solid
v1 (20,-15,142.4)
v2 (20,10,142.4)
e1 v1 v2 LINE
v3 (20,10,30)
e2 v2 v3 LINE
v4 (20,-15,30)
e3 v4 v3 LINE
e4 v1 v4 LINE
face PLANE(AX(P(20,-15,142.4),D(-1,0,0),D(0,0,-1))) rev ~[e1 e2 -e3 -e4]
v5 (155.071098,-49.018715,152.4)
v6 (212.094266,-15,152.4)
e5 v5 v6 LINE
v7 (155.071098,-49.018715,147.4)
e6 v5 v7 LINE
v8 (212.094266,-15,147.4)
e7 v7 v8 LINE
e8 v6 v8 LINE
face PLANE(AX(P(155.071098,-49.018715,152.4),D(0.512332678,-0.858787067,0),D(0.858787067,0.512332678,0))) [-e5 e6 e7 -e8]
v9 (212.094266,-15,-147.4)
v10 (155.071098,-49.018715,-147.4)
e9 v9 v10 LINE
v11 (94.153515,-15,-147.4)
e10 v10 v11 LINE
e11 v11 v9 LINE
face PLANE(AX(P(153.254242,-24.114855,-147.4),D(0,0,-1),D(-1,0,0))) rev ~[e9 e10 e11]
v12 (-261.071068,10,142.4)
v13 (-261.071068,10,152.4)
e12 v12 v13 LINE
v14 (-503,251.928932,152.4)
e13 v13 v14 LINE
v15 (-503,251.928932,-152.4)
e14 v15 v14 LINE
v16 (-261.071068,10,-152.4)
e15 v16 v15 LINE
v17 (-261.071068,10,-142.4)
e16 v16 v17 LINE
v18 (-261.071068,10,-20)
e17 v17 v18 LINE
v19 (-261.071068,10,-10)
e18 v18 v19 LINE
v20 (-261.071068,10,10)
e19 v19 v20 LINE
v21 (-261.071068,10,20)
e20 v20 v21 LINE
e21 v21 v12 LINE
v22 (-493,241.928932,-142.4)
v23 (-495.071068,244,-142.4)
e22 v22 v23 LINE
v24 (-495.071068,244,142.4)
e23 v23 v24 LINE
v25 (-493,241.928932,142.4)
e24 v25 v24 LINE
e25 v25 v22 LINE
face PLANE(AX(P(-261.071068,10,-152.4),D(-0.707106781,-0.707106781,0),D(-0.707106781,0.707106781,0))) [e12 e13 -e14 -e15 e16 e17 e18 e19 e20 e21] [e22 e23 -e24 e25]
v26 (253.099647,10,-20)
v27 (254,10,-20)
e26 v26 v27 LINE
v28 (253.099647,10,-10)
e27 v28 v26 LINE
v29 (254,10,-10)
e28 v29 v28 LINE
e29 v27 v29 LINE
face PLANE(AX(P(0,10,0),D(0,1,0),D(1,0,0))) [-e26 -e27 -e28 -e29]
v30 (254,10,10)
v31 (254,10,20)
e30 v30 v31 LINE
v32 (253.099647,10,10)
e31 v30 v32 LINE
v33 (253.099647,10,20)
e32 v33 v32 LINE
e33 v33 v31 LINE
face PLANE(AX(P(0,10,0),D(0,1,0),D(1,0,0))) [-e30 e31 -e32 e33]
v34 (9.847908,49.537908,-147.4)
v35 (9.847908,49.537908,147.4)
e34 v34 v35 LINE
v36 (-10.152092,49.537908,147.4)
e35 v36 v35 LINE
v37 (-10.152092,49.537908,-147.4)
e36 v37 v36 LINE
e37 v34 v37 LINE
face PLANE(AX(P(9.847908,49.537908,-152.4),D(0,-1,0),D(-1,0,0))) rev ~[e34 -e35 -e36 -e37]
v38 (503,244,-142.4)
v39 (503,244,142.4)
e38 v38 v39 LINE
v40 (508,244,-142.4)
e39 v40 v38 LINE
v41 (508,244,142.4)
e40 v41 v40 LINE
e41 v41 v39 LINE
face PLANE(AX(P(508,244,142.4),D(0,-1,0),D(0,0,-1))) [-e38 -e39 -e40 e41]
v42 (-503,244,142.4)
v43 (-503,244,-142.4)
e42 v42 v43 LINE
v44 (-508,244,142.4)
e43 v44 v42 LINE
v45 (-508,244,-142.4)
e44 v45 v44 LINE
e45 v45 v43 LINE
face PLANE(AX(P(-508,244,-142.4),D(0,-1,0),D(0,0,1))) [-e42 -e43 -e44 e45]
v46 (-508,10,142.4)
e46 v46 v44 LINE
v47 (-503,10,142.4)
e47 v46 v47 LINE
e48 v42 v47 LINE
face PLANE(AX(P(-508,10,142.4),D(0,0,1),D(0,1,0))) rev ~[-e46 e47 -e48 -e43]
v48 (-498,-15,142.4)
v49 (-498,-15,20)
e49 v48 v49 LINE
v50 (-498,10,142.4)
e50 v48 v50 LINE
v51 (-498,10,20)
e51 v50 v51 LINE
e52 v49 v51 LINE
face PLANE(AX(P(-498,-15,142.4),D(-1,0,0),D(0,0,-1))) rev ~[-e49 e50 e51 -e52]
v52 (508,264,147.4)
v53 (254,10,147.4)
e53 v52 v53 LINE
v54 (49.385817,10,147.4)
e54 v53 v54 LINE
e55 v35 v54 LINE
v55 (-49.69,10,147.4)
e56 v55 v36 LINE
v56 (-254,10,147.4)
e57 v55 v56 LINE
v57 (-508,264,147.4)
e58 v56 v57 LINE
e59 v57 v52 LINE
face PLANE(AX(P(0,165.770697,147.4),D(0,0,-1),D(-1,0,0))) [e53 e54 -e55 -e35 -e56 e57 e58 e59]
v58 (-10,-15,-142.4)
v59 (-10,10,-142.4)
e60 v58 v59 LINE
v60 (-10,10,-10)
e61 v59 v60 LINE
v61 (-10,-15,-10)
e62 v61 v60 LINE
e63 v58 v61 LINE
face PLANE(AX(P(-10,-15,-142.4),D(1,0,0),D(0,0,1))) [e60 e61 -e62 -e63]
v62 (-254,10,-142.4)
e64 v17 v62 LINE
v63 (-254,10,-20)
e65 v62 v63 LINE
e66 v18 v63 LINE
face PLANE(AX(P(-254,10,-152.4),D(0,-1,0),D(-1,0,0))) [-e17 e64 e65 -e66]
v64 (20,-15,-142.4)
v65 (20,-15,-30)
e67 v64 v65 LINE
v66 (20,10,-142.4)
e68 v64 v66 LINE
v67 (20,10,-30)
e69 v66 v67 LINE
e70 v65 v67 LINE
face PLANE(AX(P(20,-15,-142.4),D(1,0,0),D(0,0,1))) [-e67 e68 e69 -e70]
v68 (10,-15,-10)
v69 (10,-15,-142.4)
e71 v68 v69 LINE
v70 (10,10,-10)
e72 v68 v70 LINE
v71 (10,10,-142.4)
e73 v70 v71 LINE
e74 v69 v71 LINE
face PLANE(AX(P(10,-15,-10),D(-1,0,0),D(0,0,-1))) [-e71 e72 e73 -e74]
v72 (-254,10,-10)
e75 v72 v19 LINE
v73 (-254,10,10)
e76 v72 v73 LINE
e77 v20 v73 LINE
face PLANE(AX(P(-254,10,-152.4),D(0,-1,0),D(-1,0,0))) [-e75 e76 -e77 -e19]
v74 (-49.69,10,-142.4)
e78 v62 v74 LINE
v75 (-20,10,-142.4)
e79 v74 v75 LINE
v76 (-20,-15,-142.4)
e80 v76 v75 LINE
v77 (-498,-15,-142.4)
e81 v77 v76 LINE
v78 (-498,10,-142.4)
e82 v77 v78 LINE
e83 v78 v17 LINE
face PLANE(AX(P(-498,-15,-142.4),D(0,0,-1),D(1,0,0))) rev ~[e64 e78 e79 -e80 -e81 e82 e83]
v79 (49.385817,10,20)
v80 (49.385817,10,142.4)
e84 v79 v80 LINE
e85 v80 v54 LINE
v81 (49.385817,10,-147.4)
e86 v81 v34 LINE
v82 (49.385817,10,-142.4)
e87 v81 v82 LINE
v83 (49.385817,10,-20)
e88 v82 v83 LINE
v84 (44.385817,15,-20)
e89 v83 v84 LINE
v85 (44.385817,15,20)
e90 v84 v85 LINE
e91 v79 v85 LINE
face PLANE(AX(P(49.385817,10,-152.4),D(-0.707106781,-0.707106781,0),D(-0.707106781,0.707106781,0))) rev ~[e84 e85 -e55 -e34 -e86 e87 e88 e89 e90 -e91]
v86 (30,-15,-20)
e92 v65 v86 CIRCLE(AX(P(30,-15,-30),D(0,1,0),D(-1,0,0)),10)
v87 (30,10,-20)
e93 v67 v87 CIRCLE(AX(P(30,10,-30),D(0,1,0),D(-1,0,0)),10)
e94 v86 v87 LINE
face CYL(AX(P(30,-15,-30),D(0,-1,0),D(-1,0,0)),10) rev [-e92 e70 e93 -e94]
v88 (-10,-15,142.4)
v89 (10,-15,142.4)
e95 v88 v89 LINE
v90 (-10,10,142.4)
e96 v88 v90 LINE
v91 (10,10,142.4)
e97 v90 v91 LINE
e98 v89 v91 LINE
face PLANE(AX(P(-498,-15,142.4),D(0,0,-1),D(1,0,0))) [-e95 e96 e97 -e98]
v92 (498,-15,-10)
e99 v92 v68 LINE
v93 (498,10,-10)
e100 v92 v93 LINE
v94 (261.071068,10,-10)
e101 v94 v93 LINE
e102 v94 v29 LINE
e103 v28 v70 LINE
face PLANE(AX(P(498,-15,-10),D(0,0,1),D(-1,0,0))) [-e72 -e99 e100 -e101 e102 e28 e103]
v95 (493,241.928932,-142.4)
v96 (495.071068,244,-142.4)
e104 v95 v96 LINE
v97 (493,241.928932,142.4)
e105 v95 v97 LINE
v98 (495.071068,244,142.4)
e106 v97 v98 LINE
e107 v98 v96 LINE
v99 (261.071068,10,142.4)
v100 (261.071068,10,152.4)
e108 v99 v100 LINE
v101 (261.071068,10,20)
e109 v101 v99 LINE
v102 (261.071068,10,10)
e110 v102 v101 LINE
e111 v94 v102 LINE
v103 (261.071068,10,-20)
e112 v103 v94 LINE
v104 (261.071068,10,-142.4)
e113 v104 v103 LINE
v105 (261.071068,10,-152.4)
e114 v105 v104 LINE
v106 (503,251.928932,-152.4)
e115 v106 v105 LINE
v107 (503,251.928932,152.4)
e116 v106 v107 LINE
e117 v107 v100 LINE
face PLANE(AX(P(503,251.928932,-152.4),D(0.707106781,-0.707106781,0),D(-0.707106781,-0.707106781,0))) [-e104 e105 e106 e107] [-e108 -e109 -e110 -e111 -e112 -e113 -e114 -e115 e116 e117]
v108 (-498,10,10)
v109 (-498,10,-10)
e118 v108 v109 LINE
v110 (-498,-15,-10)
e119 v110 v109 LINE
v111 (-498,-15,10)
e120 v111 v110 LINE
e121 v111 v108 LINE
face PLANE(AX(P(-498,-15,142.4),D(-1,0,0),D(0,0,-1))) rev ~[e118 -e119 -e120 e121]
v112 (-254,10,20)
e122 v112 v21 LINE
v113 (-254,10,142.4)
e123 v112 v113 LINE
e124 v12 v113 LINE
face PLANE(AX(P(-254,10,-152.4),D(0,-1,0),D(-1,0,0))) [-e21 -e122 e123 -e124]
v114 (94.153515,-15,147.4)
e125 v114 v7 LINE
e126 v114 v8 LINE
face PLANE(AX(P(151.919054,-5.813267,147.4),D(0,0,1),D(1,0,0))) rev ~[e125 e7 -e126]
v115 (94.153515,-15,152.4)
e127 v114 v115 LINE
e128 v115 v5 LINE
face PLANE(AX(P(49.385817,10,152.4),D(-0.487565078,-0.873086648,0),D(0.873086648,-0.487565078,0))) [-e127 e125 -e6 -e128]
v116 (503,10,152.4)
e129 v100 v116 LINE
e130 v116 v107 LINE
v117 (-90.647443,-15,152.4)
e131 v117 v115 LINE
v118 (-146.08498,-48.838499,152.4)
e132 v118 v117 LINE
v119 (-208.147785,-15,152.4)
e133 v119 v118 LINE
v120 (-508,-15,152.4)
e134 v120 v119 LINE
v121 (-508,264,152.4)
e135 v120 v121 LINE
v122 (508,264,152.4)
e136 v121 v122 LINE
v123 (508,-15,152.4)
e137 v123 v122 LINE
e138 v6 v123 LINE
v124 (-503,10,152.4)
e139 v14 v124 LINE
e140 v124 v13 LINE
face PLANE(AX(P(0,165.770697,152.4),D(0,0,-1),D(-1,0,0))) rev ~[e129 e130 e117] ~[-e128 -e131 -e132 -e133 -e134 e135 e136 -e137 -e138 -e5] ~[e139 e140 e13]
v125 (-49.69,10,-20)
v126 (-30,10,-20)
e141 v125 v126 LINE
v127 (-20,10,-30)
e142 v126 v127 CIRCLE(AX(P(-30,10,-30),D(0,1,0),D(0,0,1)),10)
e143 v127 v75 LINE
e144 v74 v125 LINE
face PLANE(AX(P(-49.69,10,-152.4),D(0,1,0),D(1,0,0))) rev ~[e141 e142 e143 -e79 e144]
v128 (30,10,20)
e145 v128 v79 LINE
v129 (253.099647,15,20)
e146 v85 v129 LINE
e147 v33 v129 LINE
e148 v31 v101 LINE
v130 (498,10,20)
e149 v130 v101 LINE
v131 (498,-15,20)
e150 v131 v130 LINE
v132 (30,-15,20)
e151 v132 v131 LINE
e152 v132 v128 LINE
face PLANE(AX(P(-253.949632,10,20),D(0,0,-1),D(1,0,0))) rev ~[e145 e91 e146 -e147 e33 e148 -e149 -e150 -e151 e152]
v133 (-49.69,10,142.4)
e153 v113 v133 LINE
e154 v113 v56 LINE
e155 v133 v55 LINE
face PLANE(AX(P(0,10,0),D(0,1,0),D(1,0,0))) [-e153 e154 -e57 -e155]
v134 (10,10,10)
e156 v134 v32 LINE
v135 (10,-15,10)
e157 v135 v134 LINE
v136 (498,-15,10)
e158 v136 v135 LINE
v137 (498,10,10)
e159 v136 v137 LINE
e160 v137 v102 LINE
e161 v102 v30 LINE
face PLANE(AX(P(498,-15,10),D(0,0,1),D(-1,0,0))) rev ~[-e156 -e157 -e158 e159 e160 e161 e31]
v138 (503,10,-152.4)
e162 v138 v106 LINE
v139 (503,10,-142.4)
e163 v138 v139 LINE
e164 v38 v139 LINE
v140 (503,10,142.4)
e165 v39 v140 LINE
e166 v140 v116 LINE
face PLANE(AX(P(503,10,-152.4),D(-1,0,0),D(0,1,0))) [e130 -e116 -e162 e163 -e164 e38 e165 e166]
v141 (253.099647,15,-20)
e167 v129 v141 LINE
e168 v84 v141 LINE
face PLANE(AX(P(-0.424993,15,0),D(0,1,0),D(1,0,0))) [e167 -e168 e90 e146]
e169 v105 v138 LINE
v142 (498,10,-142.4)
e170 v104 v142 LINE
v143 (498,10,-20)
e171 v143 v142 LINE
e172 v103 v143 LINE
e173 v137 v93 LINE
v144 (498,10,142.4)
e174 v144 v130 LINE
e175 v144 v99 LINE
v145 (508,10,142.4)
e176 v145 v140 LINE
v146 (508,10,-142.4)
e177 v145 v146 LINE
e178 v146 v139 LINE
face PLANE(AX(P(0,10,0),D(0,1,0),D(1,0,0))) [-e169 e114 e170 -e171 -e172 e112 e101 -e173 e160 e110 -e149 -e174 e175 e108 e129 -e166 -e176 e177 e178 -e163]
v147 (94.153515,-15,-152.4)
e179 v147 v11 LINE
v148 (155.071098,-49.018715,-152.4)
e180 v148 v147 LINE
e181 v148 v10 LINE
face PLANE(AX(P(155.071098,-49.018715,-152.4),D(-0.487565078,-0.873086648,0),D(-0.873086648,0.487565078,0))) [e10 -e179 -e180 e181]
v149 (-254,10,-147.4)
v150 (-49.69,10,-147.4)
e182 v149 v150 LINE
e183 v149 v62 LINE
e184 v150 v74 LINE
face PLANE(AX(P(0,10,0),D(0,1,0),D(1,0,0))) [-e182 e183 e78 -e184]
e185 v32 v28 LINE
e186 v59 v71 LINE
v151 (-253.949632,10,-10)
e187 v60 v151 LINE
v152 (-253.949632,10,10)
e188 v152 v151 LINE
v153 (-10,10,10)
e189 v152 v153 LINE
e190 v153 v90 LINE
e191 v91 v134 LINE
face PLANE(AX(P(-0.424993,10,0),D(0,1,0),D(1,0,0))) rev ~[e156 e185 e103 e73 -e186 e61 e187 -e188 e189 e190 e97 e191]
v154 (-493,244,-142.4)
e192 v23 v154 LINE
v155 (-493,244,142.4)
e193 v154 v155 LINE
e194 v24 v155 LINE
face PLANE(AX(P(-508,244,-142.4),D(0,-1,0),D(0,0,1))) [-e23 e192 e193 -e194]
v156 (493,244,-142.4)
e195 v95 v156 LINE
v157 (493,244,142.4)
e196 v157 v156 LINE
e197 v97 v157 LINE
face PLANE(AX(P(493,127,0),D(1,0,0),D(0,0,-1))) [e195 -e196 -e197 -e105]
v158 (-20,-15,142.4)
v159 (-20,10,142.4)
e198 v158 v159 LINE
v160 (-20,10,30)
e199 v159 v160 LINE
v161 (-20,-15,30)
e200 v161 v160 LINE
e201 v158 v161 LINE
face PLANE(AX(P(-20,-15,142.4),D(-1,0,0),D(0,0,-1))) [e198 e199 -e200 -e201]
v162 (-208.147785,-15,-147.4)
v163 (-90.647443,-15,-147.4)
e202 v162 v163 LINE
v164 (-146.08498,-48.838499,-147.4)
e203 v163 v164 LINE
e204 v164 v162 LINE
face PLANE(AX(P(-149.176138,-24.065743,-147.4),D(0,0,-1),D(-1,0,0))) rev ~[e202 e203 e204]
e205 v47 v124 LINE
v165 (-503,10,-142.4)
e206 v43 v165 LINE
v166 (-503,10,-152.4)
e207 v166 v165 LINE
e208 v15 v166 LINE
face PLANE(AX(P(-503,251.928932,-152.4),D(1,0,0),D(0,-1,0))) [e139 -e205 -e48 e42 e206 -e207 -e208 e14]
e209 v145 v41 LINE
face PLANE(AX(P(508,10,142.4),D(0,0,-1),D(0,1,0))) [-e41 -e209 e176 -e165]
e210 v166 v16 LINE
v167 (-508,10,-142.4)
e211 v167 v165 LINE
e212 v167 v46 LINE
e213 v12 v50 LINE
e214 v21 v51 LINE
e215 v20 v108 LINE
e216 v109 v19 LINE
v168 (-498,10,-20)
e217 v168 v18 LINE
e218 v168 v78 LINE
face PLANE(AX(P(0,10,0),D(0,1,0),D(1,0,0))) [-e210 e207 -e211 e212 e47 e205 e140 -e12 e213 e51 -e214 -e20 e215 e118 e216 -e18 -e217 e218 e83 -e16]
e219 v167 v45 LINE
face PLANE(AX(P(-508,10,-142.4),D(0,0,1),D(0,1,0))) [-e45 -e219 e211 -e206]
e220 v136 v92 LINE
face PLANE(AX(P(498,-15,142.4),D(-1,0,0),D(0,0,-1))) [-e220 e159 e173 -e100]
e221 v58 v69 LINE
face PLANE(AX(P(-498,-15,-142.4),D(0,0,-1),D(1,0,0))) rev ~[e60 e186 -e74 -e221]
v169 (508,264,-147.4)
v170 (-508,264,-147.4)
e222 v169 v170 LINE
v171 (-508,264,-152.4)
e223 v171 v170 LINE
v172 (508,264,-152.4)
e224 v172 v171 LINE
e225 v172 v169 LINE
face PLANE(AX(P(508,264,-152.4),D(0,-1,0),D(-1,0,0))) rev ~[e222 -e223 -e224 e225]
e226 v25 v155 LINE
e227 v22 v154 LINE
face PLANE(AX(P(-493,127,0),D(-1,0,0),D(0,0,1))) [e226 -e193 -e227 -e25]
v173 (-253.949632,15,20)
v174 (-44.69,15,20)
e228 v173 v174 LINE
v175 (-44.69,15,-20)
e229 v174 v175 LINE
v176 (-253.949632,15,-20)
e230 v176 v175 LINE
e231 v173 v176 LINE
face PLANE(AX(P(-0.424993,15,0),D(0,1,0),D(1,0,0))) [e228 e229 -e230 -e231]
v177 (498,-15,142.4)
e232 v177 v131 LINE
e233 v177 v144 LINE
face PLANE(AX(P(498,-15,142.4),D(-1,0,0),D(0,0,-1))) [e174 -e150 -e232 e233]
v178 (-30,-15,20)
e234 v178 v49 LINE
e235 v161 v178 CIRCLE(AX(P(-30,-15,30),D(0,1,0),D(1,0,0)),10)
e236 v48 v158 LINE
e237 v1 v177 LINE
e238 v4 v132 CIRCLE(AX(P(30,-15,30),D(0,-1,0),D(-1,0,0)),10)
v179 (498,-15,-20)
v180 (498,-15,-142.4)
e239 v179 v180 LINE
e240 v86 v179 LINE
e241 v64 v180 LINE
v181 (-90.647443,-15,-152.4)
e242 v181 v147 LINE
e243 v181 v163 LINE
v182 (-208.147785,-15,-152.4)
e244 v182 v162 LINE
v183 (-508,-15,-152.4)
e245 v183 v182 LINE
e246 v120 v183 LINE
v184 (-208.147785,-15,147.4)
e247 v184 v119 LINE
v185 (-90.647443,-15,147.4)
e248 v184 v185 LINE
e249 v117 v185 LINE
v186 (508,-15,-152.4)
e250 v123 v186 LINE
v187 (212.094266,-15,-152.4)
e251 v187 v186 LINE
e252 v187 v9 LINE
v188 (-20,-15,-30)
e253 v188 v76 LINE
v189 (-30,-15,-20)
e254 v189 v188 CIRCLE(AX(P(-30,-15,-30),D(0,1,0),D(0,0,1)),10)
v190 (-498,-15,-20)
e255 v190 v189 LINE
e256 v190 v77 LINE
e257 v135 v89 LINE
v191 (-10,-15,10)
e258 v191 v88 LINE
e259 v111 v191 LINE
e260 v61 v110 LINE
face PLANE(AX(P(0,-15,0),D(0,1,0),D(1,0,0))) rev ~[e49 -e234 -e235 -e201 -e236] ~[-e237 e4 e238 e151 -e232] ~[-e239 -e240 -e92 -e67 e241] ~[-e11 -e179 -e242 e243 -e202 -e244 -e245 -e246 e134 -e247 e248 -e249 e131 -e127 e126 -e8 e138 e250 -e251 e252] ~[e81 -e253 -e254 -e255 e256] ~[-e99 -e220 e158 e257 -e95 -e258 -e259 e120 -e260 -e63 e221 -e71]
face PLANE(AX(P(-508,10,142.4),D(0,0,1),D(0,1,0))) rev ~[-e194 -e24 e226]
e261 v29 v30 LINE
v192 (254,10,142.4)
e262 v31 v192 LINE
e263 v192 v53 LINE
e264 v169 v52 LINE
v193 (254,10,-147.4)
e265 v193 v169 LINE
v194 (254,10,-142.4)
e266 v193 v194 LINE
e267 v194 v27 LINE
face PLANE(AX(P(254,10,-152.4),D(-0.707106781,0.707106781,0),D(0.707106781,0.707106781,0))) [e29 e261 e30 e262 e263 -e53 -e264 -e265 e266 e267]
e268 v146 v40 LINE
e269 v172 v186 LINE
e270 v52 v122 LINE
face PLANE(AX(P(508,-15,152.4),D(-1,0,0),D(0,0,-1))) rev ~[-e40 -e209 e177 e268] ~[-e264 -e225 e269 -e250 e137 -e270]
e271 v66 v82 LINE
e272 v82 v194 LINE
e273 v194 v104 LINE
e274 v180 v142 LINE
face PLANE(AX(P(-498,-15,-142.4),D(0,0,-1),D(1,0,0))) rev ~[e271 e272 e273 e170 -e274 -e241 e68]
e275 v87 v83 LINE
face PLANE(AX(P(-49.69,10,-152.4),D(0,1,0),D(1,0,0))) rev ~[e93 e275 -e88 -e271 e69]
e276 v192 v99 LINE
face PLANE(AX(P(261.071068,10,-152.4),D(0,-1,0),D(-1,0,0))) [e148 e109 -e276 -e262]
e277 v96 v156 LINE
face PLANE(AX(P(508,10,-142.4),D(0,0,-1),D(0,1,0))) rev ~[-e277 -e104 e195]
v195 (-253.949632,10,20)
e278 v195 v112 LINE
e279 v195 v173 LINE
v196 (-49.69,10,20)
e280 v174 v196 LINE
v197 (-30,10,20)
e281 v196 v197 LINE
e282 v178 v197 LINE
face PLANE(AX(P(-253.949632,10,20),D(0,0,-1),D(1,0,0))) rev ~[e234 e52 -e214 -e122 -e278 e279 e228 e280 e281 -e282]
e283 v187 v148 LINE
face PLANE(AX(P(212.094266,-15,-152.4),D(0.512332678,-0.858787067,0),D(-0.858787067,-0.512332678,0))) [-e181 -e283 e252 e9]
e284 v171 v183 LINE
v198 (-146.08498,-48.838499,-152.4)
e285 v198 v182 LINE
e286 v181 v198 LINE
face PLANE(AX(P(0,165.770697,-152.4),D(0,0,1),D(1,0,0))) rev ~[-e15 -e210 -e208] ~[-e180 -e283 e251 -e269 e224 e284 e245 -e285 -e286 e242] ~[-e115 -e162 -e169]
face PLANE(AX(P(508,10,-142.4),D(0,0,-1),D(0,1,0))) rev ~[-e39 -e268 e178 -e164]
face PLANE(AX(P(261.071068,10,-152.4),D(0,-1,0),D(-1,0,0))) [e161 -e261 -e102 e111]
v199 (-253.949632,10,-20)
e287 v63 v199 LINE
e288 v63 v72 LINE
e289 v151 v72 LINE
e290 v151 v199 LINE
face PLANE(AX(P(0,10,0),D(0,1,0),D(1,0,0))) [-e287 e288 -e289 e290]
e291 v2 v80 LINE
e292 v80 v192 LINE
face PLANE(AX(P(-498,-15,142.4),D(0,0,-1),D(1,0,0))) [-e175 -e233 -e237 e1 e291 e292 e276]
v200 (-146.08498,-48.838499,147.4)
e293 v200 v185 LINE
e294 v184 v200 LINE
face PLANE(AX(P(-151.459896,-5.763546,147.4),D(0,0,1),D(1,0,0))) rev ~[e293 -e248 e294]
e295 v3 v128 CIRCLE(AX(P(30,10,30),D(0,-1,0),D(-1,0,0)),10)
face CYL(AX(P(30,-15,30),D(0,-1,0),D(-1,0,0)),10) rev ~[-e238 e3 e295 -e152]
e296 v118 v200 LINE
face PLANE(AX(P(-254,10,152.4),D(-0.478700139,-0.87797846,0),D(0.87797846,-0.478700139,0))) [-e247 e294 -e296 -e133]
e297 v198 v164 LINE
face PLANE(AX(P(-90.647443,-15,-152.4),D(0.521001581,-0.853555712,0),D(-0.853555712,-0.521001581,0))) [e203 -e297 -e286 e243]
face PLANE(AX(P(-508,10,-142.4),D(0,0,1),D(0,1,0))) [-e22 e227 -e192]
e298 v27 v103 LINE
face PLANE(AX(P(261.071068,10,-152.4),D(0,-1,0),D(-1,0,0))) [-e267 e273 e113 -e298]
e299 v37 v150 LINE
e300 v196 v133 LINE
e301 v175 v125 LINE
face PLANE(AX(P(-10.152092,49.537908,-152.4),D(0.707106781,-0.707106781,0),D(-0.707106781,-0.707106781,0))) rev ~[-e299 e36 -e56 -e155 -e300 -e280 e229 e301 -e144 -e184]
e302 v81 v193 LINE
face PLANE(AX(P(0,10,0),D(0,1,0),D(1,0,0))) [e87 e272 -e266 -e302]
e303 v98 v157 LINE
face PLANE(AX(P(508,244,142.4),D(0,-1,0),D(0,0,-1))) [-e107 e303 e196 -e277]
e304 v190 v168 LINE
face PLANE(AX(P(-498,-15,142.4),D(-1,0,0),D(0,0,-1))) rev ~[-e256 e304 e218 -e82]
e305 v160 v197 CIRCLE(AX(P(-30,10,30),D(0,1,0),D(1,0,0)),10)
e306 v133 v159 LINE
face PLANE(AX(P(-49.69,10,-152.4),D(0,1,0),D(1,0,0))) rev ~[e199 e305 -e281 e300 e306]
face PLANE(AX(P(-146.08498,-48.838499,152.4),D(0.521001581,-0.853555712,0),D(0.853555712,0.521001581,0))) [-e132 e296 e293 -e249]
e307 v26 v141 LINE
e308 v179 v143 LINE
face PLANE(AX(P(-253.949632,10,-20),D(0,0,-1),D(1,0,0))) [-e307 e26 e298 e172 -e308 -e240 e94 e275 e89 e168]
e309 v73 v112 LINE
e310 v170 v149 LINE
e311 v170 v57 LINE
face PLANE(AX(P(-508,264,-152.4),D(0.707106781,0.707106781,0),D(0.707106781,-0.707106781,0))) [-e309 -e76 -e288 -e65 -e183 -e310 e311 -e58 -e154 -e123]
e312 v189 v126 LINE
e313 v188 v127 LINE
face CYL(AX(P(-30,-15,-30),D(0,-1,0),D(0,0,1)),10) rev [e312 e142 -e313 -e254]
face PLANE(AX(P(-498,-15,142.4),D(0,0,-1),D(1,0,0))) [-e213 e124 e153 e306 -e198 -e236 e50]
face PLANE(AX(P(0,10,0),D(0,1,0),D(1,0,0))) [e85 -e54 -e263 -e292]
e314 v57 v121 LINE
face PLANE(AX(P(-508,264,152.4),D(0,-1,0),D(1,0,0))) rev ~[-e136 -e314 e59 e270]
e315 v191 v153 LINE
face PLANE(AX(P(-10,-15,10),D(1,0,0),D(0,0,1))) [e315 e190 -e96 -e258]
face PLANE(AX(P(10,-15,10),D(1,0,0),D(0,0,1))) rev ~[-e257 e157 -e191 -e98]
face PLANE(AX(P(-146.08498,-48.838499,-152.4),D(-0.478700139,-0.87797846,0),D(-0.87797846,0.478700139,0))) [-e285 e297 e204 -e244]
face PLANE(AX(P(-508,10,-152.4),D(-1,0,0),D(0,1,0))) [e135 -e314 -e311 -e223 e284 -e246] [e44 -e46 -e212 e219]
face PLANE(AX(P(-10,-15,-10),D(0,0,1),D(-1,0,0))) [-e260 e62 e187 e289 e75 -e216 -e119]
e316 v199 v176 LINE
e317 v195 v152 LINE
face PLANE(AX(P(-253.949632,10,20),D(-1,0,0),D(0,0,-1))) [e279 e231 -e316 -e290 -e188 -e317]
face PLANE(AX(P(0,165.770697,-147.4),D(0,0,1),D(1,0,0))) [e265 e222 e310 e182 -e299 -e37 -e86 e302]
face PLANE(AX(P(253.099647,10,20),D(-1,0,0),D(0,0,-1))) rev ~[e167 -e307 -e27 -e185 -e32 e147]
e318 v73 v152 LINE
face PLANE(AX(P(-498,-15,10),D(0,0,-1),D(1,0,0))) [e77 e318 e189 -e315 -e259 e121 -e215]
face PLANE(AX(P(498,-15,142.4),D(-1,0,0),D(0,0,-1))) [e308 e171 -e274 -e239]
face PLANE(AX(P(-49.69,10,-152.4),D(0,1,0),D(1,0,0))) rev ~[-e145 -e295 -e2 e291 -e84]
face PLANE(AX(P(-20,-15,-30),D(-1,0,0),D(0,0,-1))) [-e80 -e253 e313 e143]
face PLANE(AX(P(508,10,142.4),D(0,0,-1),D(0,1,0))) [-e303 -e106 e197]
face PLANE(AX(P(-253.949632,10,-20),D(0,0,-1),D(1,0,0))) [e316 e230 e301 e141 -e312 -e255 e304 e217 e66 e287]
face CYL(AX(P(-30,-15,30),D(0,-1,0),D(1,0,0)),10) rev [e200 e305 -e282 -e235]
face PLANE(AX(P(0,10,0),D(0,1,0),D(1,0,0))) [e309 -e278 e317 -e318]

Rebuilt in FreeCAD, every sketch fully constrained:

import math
import FreeCAD as App
import Part
import Sketcher

doc = App.newDocument("Part")
body = doc.addObject("PartDesign::Body", "Body")

# Sketch on XZ plane
sketch1 = doc.addObject("Sketcher::SketchObject", "Sketch")
body.addObject(sketch1)
sketch1.AttachmentSupport = (doc.XZ_Plane, [""])
sketch1.MapMode = "FlatFace"
sketch1.addGeometry([
    Part.LineSegment(App.Vector(-508, -152, 0), App.Vector(-508, 152, 0)),  # 0
    Part.LineSegment(App.Vector(-508, 152, 0), App.Vector(508, 152, 0)),  # 1
    Part.LineSegment(App.Vector(508, 152, 0), App.Vector(508, -152, 0)),  # 2
    Part.LineSegment(App.Vector(508, -152, 0), App.Vector(-508, -152, 0)),  # 3
    Part.LineSegment(App.Vector(498, 142, 0), App.Vector(-498, 142, 0)),  # 4
    Part.LineSegment(App.Vector(-498, 142, 0), App.Vector(-498, -142, 0)),  # 5
    Part.LineSegment(App.Vector(-498, -142, 0), App.Vector(498, -142, 0)),  # 6
    Part.LineSegment(App.Vector(498, -142, 0), App.Vector(498, 142, 0)),  # 7
], False)
sketch1.addConstraint([
    Sketcher.Constraint("Coincident", 0, 2, 1, 1),
    Sketcher.Constraint("Coincident", 1, 2, 2, 1),
    Sketcher.Constraint("Coincident", 2, 2, 3, 1),
    Sketcher.Constraint("Coincident", 3, 2, 0, 1),
    Sketcher.Constraint("Coincident", 4, 2, 5, 1),
    Sketcher.Constraint("Coincident", 5, 2, 6, 1),
    Sketcher.Constraint("Coincident", 6, 2, 7, 1),
    Sketcher.Constraint("Coincident", 7, 2, 4, 1),
    Sketcher.Constraint("Vertical", 0),
    Sketcher.Constraint("Horizontal", 1),
    Sketcher.Constraint("Vertical", 2),
    Sketcher.Constraint("Horizontal", 3),
    Sketcher.Constraint("Horizontal", 4),
    Sketcher.Constraint("Vertical", 5),
    Sketcher.Constraint("Horizontal", 6),
    Sketcher.Constraint("Vertical", 7),
    Sketcher.Constraint("Symmetric", 0, 2, 2, 2, -1, 1),
    Sketcher.Constraint("Symmetric", 4, 2, 6, 2, -1, 1),
    Sketcher.Constraint("DistanceX", 1, 1, 1, 2, 1016.0),
    Sketcher.Constraint("DistanceX", 4, 2, 4, 1, 996.0),
    Sketcher.Constraint("DistanceY", 0, 1, 0, 2, 304.8),
    Sketcher.Constraint("DistanceY", 5, 2, 5, 1, 284.8),
])
pad1 = doc.addObject("PartDesign::Pad", "Pad")
body.addObject(pad1)
pad1.Profile = sketch1
pad1.Type = "TwoLengths"
pad1.Length = 10
pad1.Length2 = 15
pad1.Reversed = True

# Sketch on XZ plane
sketch2 = doc.addObject("Sketcher::SketchObject", "Sketch001")
body.addObject(sketch2)
sketch2.AttachmentSupport = (doc.XZ_Plane, [""])
sketch2.MapMode = "FlatFace"
sketch2.addGeometry([
    Part.LineSegment(App.Vector(-30, -20, 0), App.Vector(-498, -20, 0)),  # 0
    Part.LineSegment(App.Vector(-498, -20, 0), App.Vector(-498, -10, 0)),  # 1
    Part.LineSegment(App.Vector(-498, -10, 0), App.Vector(-10, -10, 0)),  # 2
    Part.LineSegment(App.Vector(-10, -10, 0), App.Vector(-10, -142, 0)),  # 3
    Part.LineSegment(App.Vector(-10, -142, 0), App.Vector(-20, -142, 0)),  # 4
    Part.LineSegment(App.Vector(-20, -142, 0), App.Vector(-20, -30, 0)),  # 5
    Part.ArcOfCircle(Part.Circle(App.Vector(-30, -30, 0), App.Vector(0, 0, 1), 10), math.radians(0), math.radians(90)),  # 6
    Part.LineSegment(App.Vector(498, -10, 0), App.Vector(498, -20, 0)),  # 7
    Part.LineSegment(App.Vector(498, -20, 0), App.Vector(30, -20, 0)),  # 8
    Part.ArcOfCircle(Part.Circle(App.Vector(30, -30, 0), App.Vector(0, 0, 1), 10), math.radians(90), math.radians(180)),  # 9
    Part.LineSegment(App.Vector(20, -30, 0), App.Vector(20, -142, 0)),  # 10
    Part.LineSegment(App.Vector(20, -142, 0), App.Vector(10, -142, 0)),  # 11
    Part.LineSegment(App.Vector(10, -142, 0), App.Vector(10, -10, 0)),  # 12
    Part.LineSegment(App.Vector(10, -10, 0), App.Vector(498, -10, 0)),  # 13
    Part.LineSegment(App.Vector(-10, 10, 0), App.Vector(-498, 10, 0)),  # 14
    Part.LineSegment(App.Vector(-498, 10, 0), App.Vector(-498, 20, 0)),  # 15
    Part.LineSegment(App.Vector(-498, 20, 0), App.Vector(-30, 20, 0)),  # 16
    Part.ArcOfCircle(Part.Circle(App.Vector(-30, 30, 0), App.Vector(0, 0, 1), 10), math.radians(-90), math.radians(0)),  # 17
    Part.LineSegment(App.Vector(-20, 30, 0), App.Vector(-20, 142, 0)),  # 18
    Part.LineSegment(App.Vector(-20, 142, 0), App.Vector(-10, 142, 0)),  # 19
    Part.LineSegment(App.Vector(-10, 142, 0), App.Vector(-10, 10, 0)),  # 20
    Part.LineSegment(App.Vector(30, 20, 0), App.Vector(498, 20, 0)),  # 21
    Part.LineSegment(App.Vector(498, 20, 0), App.Vector(498, 10, 0)),  # 22
    Part.LineSegment(App.Vector(498, 10, 0), App.Vector(10, 10, 0)),  # 23
    Part.LineSegment(App.Vector(10, 10, 0), App.Vector(10, 142, 0)),  # 24
    Part.LineSegment(App.Vector(10, 142, 0), App.Vector(20, 142, 0)),  # 25
    Part.LineSegment(App.Vector(20, 142, 0), App.Vector(20, 30, 0)),  # 26
    Part.ArcOfCircle(Part.Circle(App.Vector(30, 30, 0), App.Vector(0, 0, 1), 10), math.radians(180), math.radians(270)),  # 27
], False)
sketch2.addConstraint([
    Sketcher.Constraint("Coincident", 0, 2, 1, 1),
    Sketcher.Constraint("Coincident", 1, 2, 2, 1),
    Sketcher.Constraint("Coincident", 2, 2, 3, 1),
    Sketcher.Constraint("Coincident", 3, 2, 4, 1),
    Sketcher.Constraint("Coincident", 4, 2, 5, 1),
    Sketcher.Constraint("Tangent", 5, 2, 6, 1),
    Sketcher.Constraint("Tangent", 6, 2, 0, 1),
    Sketcher.Constraint("Coincident", 7, 2, 8, 1),
    Sketcher.Constraint("Tangent", 8, 2, 9, 1),
    Sketcher.Constraint("Tangent", 9, 2, 10, 1),
    Sketcher.Constraint("Coincident", 10, 2, 11, 1),
    Sketcher.Constraint("Coincident", 11, 2, 12, 1),
    Sketcher.Constraint("Coincident", 12, 2, 13, 1),
    Sketcher.Constraint("Coincident", 13, 2, 7, 1),
    Sketcher.Constraint("Coincident", 14, 2, 15, 1),
    Sketcher.Constraint("Coincident", 15, 2, 16, 1),
    Sketcher.Constraint("Tangent", 16, 2, 17, 1),
    Sketcher.Constraint("Tangent", 17, 2, 18, 1),
    Sketcher.Constraint("Coincident", 18, 2, 19, 1),
    Sketcher.Constraint("Coincident", 19, 2, 20, 1),
    Sketcher.Constraint("Coincident", 20, 2, 14, 1),
    Sketcher.Constraint("Coincident", 21, 2, 22, 1),
    Sketcher.Constraint("Coincident", 22, 2, 23, 1),
    Sketcher.Constraint("Coincident", 23, 2, 24, 1),
    Sketcher.Constraint("Coincident", 24, 2, 25, 1),
    Sketcher.Constraint("Coincident", 25, 2, 26, 1),
    Sketcher.Constraint("Tangent", 26, 2, 27, 1),
    Sketcher.Constraint("Tangent", 27, 2, 21, 1),
    Sketcher.Constraint("Horizontal", 0),
    Sketcher.Constraint("Vertical", 1),
    Sketcher.Constraint("Horizontal", 2),
    Sketcher.Constraint("Vertical", 3),
    Sketcher.Constraint("Horizontal", 4),
    Sketcher.Constraint("Vertical", 5),
    Sketcher.Constraint("Vertical", 7),
    Sketcher.Constraint("Horizontal", 8),
    Sketcher.Constraint("Vertical", 10),
    Sketcher.Constraint("Horizontal", 11),
    Sketcher.Constraint("Vertical", 12),
    Sketcher.Constraint("Horizontal", 13),
    Sketcher.Constraint("Horizontal", 14),
    Sketcher.Constraint("Vertical", 15),
    Sketcher.Constraint("Horizontal", 16),
    Sketcher.Constraint("Vertical", 18),
    Sketcher.Constraint("Horizontal", 19),
    Sketcher.Constraint("Vertical", 20),
    Sketcher.Constraint("Horizontal", 21),
    Sketcher.Constraint("Vertical", 22),
    Sketcher.Constraint("Horizontal", 23),
    Sketcher.Constraint("Vertical", 24),
    Sketcher.Constraint("Horizontal", 25),
    Sketcher.Constraint("Vertical", 26),
    Sketcher.Constraint("Equal", 6, 9),
    Sketcher.Constraint("Equal", 9, 17),
    Sketcher.Constraint("Equal", 17, 27),
    Sketcher.Constraint("Symmetric", 9, 3, 17, 3, -1, 1),
    Sketcher.Constraint("Symmetric", 6, 3, 27, 3, -1, 1),
    Sketcher.Constraint("Symmetric", 13, 2, 14, 2, -1, 1),
    Sketcher.Constraint("Symmetric", 11, 2, 19, 2, -1, 1),
    Sketcher.Constraint("Symmetric", 1, 2, 22, 2, -1, 1),
    Sketcher.Constraint("Symmetric", 3, 2, 24, 2, -1, 1),
    Sketcher.Constraint("Symmetric", 6, 3, 9, 3, -2),
    Sketcher.Constraint("Symmetric", 3, 2, 11, 2, -2),
    Sketcher.Constraint("Symmetric", 1, 2, 13, 2, -2),
    Sketcher.Constraint("Equal", 25, 1),
    Sketcher.Constraint("Radius", 6, 10.0),
    Sketcher.Constraint("DistanceX", 0, 2, 0, 1, 468.0),
    Sketcher.Constraint("DistanceX", 2, 1, 2, 2, 488.0),
    Sketcher.Constraint("DistanceY", 3, 2, 3, 1, 132.4),
    Sketcher.Constraint("DistanceX", 6, 3, -1, 1, 30.0),
    Sketcher.Constraint("DistanceY", 6, 3, -1, 1, 30.0),
])
pad2 = doc.addObject("PartDesign::Pad", "Pad001")
body.addObject(pad2)
pad2.Profile = sketch2
pad2.Type = "TwoLengths"
pad2.Length = 10
pad2.Length2 = 15
pad2.Reversed = True

# Sketch on XY plane
sketch3 = doc.addObject("Sketcher::SketchObject", "Sketch002")
body.addObject(sketch3)
sketch3.AttachmentSupport = (doc.XY_Plane, [""])
sketch3.MapMode = "FlatFace"
sketch3.addGeometry([
    Part.LineSegment(App.Vector(-508, 264, 0), App.Vector(-508, 10, 0)),  # 0
    Part.LineSegment(App.Vector(-508, 10, 0), App.Vector(-503, 10, 0)),  # 1
    Part.LineSegment(App.Vector(-503, 10, 0), App.Vector(-503, 252, 0)),  # 2
    Part.LineSegment(App.Vector(-503, 252, 0), App.Vector(-261, 10, 0)),  # 3
    Part.LineSegment(App.Vector(-261, 10, 0), App.Vector(-254, 10, 0)),  # 4
    Part.LineSegment(App.Vector(-254, 10, 0), App.Vector(-508, 264, 0)),  # 5
    Part.LineSegment(App.Vector(254, 10, 0), App.Vector(261, 10, 0)),  # 6
    Part.LineSegment(App.Vector(261, 10, 0), App.Vector(503, 252, 0)),  # 7
    Part.LineSegment(App.Vector(503, 252, 0), App.Vector(503, 10, 0)),  # 8
    Part.LineSegment(App.Vector(503, 10, 0), App.Vector(508, 10, 0)),  # 9
    Part.LineSegment(App.Vector(508, 10, 0), App.Vector(508, 264, 0)),  # 10
    Part.LineSegment(App.Vector(508, 264, 0), App.Vector(254, 10, 0)),  # 11
], False)
sketch3.addConstraint([
    Sketcher.Constraint("Coincident", 0, 2, 1, 1),
    Sketcher.Constraint("Coincident", 1, 2, 2, 1),
    Sketcher.Constraint("Coincident", 2, 2, 3, 1),
    Sketcher.Constraint("Coincident", 3, 2, 4, 1),
    Sketcher.Constraint("Coincident", 4, 2, 5, 1),
    Sketcher.Constraint("Coincident", 5, 2, 0, 1),
    Sketcher.Constraint("Coincident", 6, 2, 7, 1),
    Sketcher.Constraint("Coincident", 7, 2, 8, 1),
    Sketcher.Constraint("Coincident", 8, 2, 9, 1),
    Sketcher.Constraint("Coincident", 9, 2, 10, 1),
    Sketcher.Constraint("Coincident", 10, 2, 11, 1),
    Sketcher.Constraint("Coincident", 11, 2, 6, 1),
    Sketcher.Constraint("Vertical", 0),
    Sketcher.Constraint("Horizontal", 1),
    Sketcher.Constraint("Vertical", 2),
    Sketcher.Constraint("Horizontal", 4),
    Sketcher.Constraint("Horizontal", 6),
    Sketcher.Constraint("Vertical", 8),
    Sketcher.Constraint("Horizontal", 9),
    Sketcher.Constraint("Vertical", 10),
    Sketcher.Constraint("Symmetric", 3, 2, 6, 2, -2),
    Sketcher.Constraint("Symmetric", 2, 2, 7, 2, -2),
    Sketcher.Constraint("Symmetric", 0, 2, 9, 2, -2),
    Sketcher.Constraint("Parallel", 3, 5),
    Sketcher.Constraint("Perpendicular", 5, 7),
    Sketcher.Constraint("Parallel", 7, 11),
    Sketcher.Constraint("Horizontal", 1, 2, 3, 2),
    Sketcher.Constraint("Horizontal", 5, 2, 10, 2),
    Sketcher.Constraint("DistanceX", 1, 1, 1, 2, 5.0),
    Sketcher.Constraint("DistanceY", 0, 2, 0, 1, 254.0),
    Sketcher.Constraint("DistanceX", 0, 2, -1, 1, 508.0),
    Sketcher.Constraint("DistanceY", -1, 1, 0, 2, 10.0),
    Sketcher.Constraint("DistanceX", 4, 1, 4, 2, 7.071068),
])
pad3 = doc.addObject("PartDesign::Pad", "Pad002")
body.addObject(pad3)
pad3.Profile = sketch3
pad3.Type = "TwoLengths"
pad3.Length = 152.4
pad3.Length2 = 152.4

# Sketch on XZ plane
sketch4 = doc.addObject("Sketcher::SketchObject", "Sketch003")
body.addObject(sketch4)
sketch4.AttachmentSupport = (doc.XZ_Plane, [""])
sketch4.MapMode = "FlatFace"
sketch4.AttachmentOffset = App.Placement(App.Vector(0, 0, -10), App.Rotation())
sketch4.addGeometry([
    Part.LineSegment(App.Vector(-254, -20, 0), App.Vector(-254, 20, 0)),
    Part.LineSegment(App.Vector(-254, 20, 0), App.Vector(253, 20, 0)),
    Part.LineSegment(App.Vector(253, 20, 0), App.Vector(253, -20, 0)),
    Part.LineSegment(App.Vector(253, -20, 0), App.Vector(-254, -20, 0)),
], False)
sketch4.addConstraint([
    Sketcher.Constraint("Coincident", 0, 2, 1, 1),
    Sketcher.Constraint("Coincident", 1, 2, 2, 1),
    Sketcher.Constraint("Coincident", 2, 2, 3, 1),
    Sketcher.Constraint("Coincident", 3, 2, 0, 1),
    Sketcher.Constraint("Vertical", 0),
    Sketcher.Constraint("Horizontal", 1),
    Sketcher.Constraint("Vertical", 2),
    Sketcher.Constraint("Horizontal", 3),
    Sketcher.Constraint("DistanceY", 0, 1, 0, 2, 40.0),
    Sketcher.Constraint("DistanceY", -1, 1, 0, 2, 20.0),
    Sketcher.Constraint("DistanceX", 1, 1, 1, 2, 507.049279),
    Sketcher.Constraint("DistanceX", 0, 2, -1, 1, 253.949632),
])
pad4 = doc.addObject("PartDesign::Pad", "Pad003")
body.addObject(pad4)
pad4.Profile = sketch4
pad4.Length = 5
pad4.Reversed = True

# Sketch on YZ plane
sketch5 = doc.addObject("Sketcher::SketchObject", "Sketch004")
body.addObject(sketch5)
sketch5.AttachmentSupport = (doc.YZ_Plane, [""])
sketch5.MapMode = "FlatFace"
sketch5.AttachmentOffset = App.Placement(App.Vector(0, 0, 508), App.Rotation())
sketch5.addGeometry([
    Part.LineSegment(App.Vector(244, 142, 0), App.Vector(10, 142, 0)),
    Part.LineSegment(App.Vector(10, 142, 0), App.Vector(10, -142, 0)),
    Part.LineSegment(App.Vector(10, -142, 0), App.Vector(244, -142, 0)),
    Part.LineSegment(App.Vector(244, -142, 0), App.Vector(244, 142, 0)),
], False)
sketch5.addConstraint([
    Sketcher.Constraint("Coincident", 0, 2, 1, 1),
    Sketcher.Constraint("Coincident", 1, 2, 2, 1),
    Sketcher.Constraint("Coincident", 2, 2, 3, 1),
    Sketcher.Constraint("Coincident", 3, 2, 0, 1),
    Sketcher.Constraint("Horizontal", 0),
    Sketcher.Constraint("Vertical", 1),
    Sketcher.Constraint("Horizontal", 2),
    Sketcher.Constraint("Vertical", 3),
    Sketcher.Constraint("DistanceX", 0, 2, 0, 1, 234.0),
    Sketcher.Constraint("DistanceY", 1, 2, 1, 1, 284.8),
    Sketcher.Constraint("DistanceX", -1, 1, 0, 2, 10.0),
    Sketcher.Constraint("DistanceY", -1, 1, 0, 2, 142.4),
])
pocket1 = doc.addObject("PartDesign::Pocket", "Pocket")
body.addObject(pocket1)
pocket1.Profile = sketch5
pocket1.Length = 15

# Sketch on YZ plane
sketch6 = doc.addObject("Sketcher::SketchObject", "Sketch005")
body.addObject(sketch6)
sketch6.AttachmentSupport = (doc.YZ_Plane, [""])
sketch6.MapMode = "FlatFace"
sketch6.AttachmentOffset = App.Placement(App.Vector(0, 0, -508), App.Rotation())
sketch6.addGeometry([
    Part.LineSegment(App.Vector(244, -142, 0), App.Vector(10, -142, 0)),
    Part.LineSegment(App.Vector(10, -142, 0), App.Vector(10, 142, 0)),
    Part.LineSegment(App.Vector(10, 142, 0), App.Vector(244, 142, 0)),
    Part.LineSegment(App.Vector(244, 142, 0), App.Vector(244, -142, 0)),
], False)
sketch6.addConstraint([
    Sketcher.Constraint("Coincident", 0, 2, 1, 1),
    Sketcher.Constraint("Coincident", 1, 2, 2, 1),
    Sketcher.Constraint("Coincident", 2, 2, 3, 1),
    Sketcher.Constraint("Coincident", 3, 2, 0, 1),
    Sketcher.Constraint("Horizontal", 0),
    Sketcher.Constraint("Vertical", 1),
    Sketcher.Constraint("Horizontal", 2),
    Sketcher.Constraint("Vertical", 3),
    Sketcher.Constraint("DistanceX", 0, 2, 0, 1, 234.0),
    Sketcher.Constraint("DistanceY", 1, 1, 1, 2, 284.8),
    Sketcher.Constraint("DistanceX", -1, 1, 0, 2, 10.0),
    Sketcher.Constraint("DistanceY", 0, 2, -1, 1, 142.4),
])
pocket2 = doc.addObject("PartDesign::Pocket", "Pocket001")
body.addObject(pocket2)
pocket2.Profile = sketch6
pocket2.Length = 15
pocket2.Reversed = True

# Sketch on XY plane
sketch7 = doc.addObject("Sketcher::SketchObject", "Sketch006")
body.addObject(sketch7)
sketch7.AttachmentSupport = (doc.XY_Plane, [""])
sketch7.MapMode = "FlatFace"
sketch7.AttachmentOffset = App.Placement(App.Vector(0, 0, -152.4), App.Rotation())
sketch7.addGeometry([
    Part.LineSegment(App.Vector(10, 50, 0), App.Vector(49, 10, 0)),
    Part.LineSegment(App.Vector(49, 10, 0), App.Vector(-50, 10, 0)),
    Part.LineSegment(App.Vector(-50, 10, 0), App.Vector(-10, 50, 0)),
    Part.LineSegment(App.Vector(-10, 50, 0), App.Vector(10, 50, 0)),
], False)
sketch7.addConstraint([
    Sketcher.Constraint("Coincident", 0, 2, 1, 1),
    Sketcher.Constraint("Coincident", 1, 2, 2, 1),
    Sketcher.Constraint("Coincident", 2, 2, 3, 1),
    Sketcher.Constraint("Coincident", 3, 2, 0, 1),
    Sketcher.Constraint("Horizontal", 1),
    Sketcher.Constraint("Horizontal", 3),
    Sketcher.Constraint("Perpendicular", 0, 2),
    Sketcher.Constraint("Equal", 0, 2),
    Sketcher.Constraint("DistanceX", 3, 1, 3, 2, 20.0),
    Sketcher.Constraint("DistanceY", -1, 1, 0, 2, 10.0),
    Sketcher.Constraint("DistanceX", 1, 2, -1, 1, 49.69),
    Sketcher.Constraint("DistanceX", 1, 2, 1, 1, 99.075817),
])
pad5 = doc.addObject("PartDesign::Pad", "Pad004")
body.addObject(pad5)
pad5.Profile = sketch7
pad5.Length = 304.8

# Sketch on XY plane
sketch8 = doc.addObject("Sketcher::SketchObject", "Sketch007")
body.addObject(sketch8)
sketch8.AttachmentSupport = (doc.XY_Plane, [""])
sketch8.MapMode = "FlatFace"
sketch8.AttachmentOffset = App.Placement(App.Vector(0, 0, 152.4), App.Rotation())
sketch8.addGeometry([
    Part.LineSegment(App.Vector(508, 264, 0), App.Vector(-508, 264, 0)),
    Part.LineSegment(App.Vector(-508, 264, 0), App.Vector(-254, 10, 0)),
    Part.LineSegment(App.Vector(-254, 10, 0), App.Vector(254, 10, 0)),
    Part.LineSegment(App.Vector(254, 10, 0), App.Vector(508, 264, 0)),
], False)
sketch8.addConstraint([
    Sketcher.Constraint("Coincident", 0, 2, 1, 1),
    Sketcher.Constraint("Coincident", 1, 2, 2, 1),
    Sketcher.Constraint("Coincident", 2, 2, 3, 1),
    Sketcher.Constraint("Coincident", 3, 2, 0, 1),
    Sketcher.Constraint("Horizontal", 0),
    Sketcher.Constraint("Horizontal", 2),
    Sketcher.Constraint("Perpendicular", 1, 3),
    Sketcher.Constraint("Equal", 1, 3),
    Sketcher.Constraint("DistanceX", 0, 2, 0, 1, 1016.0),
    Sketcher.Constraint("DistanceX", 2, 1, 2, 2, 508.0),
    Sketcher.Constraint("DistanceX", 0, 2, -1, 1, 508.0),
    Sketcher.Constraint("DistanceY", -1, 1, 0, 2, 264.0),
])
pad6 = doc.addObject("PartDesign::Pad", "Pad005")
body.addObject(pad6)
pad6.Profile = sketch8
pad6.Length = 5
pad6.Reversed = True

# Sketch on XY plane
sketch9 = doc.addObject("Sketcher::SketchObject", "Sketch008")
body.addObject(sketch9)
sketch9.AttachmentSupport = (doc.XY_Plane, [""])
sketch9.MapMode = "FlatFace"
sketch9.AttachmentOffset = App.Placement(App.Vector(0, 0, -152.4), App.Rotation())
sketch9.addGeometry([
    Part.LineSegment(App.Vector(-508, 264, 0), App.Vector(508, 264, 0)),
    Part.LineSegment(App.Vector(508, 264, 0), App.Vector(254, 10, 0)),
    Part.LineSegment(App.Vector(254, 10, 0), App.Vector(-254, 10, 0)),
    Part.LineSegment(App.Vector(-254, 10, 0), App.Vector(-508, 264, 0)),
], False)
sketch9.addConstraint([
    Sketcher.Constraint("Coincident", 0, 2, 1, 1),
    Sketcher.Constraint("Coincident", 1, 2, 2, 1),
    Sketcher.Constraint("Coincident", 2, 2, 3, 1),
    Sketcher.Constraint("Coincident", 3, 2, 0, 1),
    Sketcher.Constraint("Horizontal", 0),
    Sketcher.Constraint("Horizontal", 2),
    Sketcher.Constraint("Perpendicular", 1, 3),
    Sketcher.Constraint("Equal", 1, 3),
    Sketcher.Constraint("DistanceX", 0, 1, 0, 2, 1016.0),
    Sketcher.Constraint("DistanceX", 2, 2, 2, 1, 508.0),
    Sketcher.Constraint("DistanceX", -1, 1, 0, 2, 508.0),
    Sketcher.Constraint("DistanceY", -1, 1, 0, 2, 264.0),
])
pad7 = doc.addObject("PartDesign::Pad", "Pad006")
body.addObject(pad7)
pad7.Profile = sketch9
pad7.Length = 5

# Sketch on XY plane
sketch10 = doc.addObject("Sketcher::SketchObject", "Sketch009")
body.addObject(sketch10)
sketch10.AttachmentSupport = (doc.XY_Plane, [""])
sketch10.MapMode = "FlatFace"
sketch10.AttachmentOffset = App.Placement(App.Vector(0, 0, 152.4), App.Rotation())
sketch10.addGeometry([
    Part.LineSegment(App.Vector(-254, 10, 0), App.Vector(-146, -49, 0)),  # 0
    Part.LineSegment(App.Vector(-146, -49, 0), App.Vector(-50, 10, 0)),  # 1
    Part.LineSegment(App.Vector(-50, 10, 0), App.Vector(-254, 10, 0)),  # 2
    Part.LineSegment(App.Vector(49, 10, 0), App.Vector(155, -49, 0)),  # 3
    Part.LineSegment(App.Vector(155, -49, 0), App.Vector(254, 10, 0)),  # 4
    Part.LineSegment(App.Vector(254, 10, 0), App.Vector(49, 10, 0)),  # 5
], False)
sketch10.addConstraint([
    Sketcher.Constraint("Coincident", 0, 2, 1, 1),
    Sketcher.Constraint("Coincident", 1, 2, 2, 1),
    Sketcher.Constraint("Coincident", 2, 2, 0, 1),
    Sketcher.Constraint("Coincident", 3, 2, 4, 1),
    Sketcher.Constraint("Coincident", 4, 2, 5, 1),
    Sketcher.Constraint("Coincident", 5, 2, 3, 1),
    Sketcher.Constraint("Horizontal", 2),
    Sketcher.Constraint("Horizontal", 5),
    Sketcher.Constraint("Symmetric", 2, 2, 4, 2, -2),
    Sketcher.Constraint("DistanceY", -1, 1, 1, 2, 10.0),
    Sketcher.Constraint("DistanceX", 2, 2, -1, 1, 254.0),
    Sketcher.Constraint("DistanceX", 2, 2, 2, 1, 204.31),
    Sketcher.Constraint("DistanceY", 0, 2, -1, 1, 48.838499),
    Sketcher.Constraint("Distance", 0, 122.913061),
    Sketcher.Constraint("Distance", 4, 115.196078),
    Sketcher.Constraint("DistanceX", 5, 2, 5, 1, 204.614183),
    Sketcher.Constraint("DistanceX", 5, 2, 3, 2, 105.685281),
])
pad8 = doc.addObject("PartDesign::Pad", "Pad007")
body.addObject(pad8)
pad8.Profile = sketch10
pad8.Length = 5
pad8.Reversed = True

# Sketch on XY plane
sketch11 = doc.addObject("Sketcher::SketchObject", "Sketch010")
body.addObject(sketch11)
sketch11.AttachmentSupport = (doc.XY_Plane, [""])
sketch11.MapMode = "FlatFace"
sketch11.AttachmentOffset = App.Placement(App.Vector(0, 0, -152.4), App.Rotation())
sketch11.addGeometry([
    Part.LineSegment(App.Vector(212, -15, 0), App.Vector(155, -49, 0)),  # 0
    Part.LineSegment(App.Vector(155, -49, 0), App.Vector(94, -15, 0)),  # 1
    Part.LineSegment(App.Vector(94, -15, 0), App.Vector(212, -15, 0)),  # 2
    Part.LineSegment(App.Vector(-91, -15, 0), App.Vector(-146, -49, 0)),  # 3
    Part.LineSegment(App.Vector(-146, -49, 0), App.Vector(-208, -15, 0)),  # 4
    Part.LineSegment(App.Vector(-208, -15, 0), App.Vector(-91, -15, 0)),  # 5
], False)
sketch11.addConstraint([
    Sketcher.Constraint("Coincident", 0, 2, 1, 1),
    Sketcher.Constraint("Coincident", 1, 2, 2, 1),
    Sketcher.Constraint("Coincident", 2, 2, 0, 1),
    Sketcher.Constraint("Coincident", 3, 2, 4, 1),
    Sketcher.Constraint("Coincident", 4, 2, 5, 1),
    Sketcher.Constraint("Coincident", 5, 2, 3, 1),
    Sketcher.Constraint("Horizontal", 2),
    Sketcher.Constraint("Horizontal", 5),
    Sketcher.Constraint("Horizontal", 2, 2, 4, 2),
    Sketcher.Constraint("DistanceY", 1, 2, -1, 1, 15.0),
    Sketcher.Constraint("Distance", 4, 70.6883),
    Sketcher.Constraint("DistanceX", 2, 1, 2, 2, 117.940752),
    Sketcher.Constraint("DistanceX", 5, 1, 5, 2, 117.500342),
    Sketcher.Constraint("DistanceY", 3, 2, -1, 1, 48.838499),
    Sketcher.Constraint("DistanceX", 4, 2, 1, 2, 302.3013),
    Sketcher.Constraint("Distance", 0, 66.399659),
    Sketcher.Constraint("DistanceX", 3, 2, -1, 1, 146.08498),
    Sketcher.Constraint("DistanceX", 0, 2, 2, 2, 57.023169),
])
pad9 = doc.addObject("PartDesign::Pad", "Pad008")
body.addObject(pad9)
pad9.Profile = sketch11
pad9.Length = 5

doc.recompute()
